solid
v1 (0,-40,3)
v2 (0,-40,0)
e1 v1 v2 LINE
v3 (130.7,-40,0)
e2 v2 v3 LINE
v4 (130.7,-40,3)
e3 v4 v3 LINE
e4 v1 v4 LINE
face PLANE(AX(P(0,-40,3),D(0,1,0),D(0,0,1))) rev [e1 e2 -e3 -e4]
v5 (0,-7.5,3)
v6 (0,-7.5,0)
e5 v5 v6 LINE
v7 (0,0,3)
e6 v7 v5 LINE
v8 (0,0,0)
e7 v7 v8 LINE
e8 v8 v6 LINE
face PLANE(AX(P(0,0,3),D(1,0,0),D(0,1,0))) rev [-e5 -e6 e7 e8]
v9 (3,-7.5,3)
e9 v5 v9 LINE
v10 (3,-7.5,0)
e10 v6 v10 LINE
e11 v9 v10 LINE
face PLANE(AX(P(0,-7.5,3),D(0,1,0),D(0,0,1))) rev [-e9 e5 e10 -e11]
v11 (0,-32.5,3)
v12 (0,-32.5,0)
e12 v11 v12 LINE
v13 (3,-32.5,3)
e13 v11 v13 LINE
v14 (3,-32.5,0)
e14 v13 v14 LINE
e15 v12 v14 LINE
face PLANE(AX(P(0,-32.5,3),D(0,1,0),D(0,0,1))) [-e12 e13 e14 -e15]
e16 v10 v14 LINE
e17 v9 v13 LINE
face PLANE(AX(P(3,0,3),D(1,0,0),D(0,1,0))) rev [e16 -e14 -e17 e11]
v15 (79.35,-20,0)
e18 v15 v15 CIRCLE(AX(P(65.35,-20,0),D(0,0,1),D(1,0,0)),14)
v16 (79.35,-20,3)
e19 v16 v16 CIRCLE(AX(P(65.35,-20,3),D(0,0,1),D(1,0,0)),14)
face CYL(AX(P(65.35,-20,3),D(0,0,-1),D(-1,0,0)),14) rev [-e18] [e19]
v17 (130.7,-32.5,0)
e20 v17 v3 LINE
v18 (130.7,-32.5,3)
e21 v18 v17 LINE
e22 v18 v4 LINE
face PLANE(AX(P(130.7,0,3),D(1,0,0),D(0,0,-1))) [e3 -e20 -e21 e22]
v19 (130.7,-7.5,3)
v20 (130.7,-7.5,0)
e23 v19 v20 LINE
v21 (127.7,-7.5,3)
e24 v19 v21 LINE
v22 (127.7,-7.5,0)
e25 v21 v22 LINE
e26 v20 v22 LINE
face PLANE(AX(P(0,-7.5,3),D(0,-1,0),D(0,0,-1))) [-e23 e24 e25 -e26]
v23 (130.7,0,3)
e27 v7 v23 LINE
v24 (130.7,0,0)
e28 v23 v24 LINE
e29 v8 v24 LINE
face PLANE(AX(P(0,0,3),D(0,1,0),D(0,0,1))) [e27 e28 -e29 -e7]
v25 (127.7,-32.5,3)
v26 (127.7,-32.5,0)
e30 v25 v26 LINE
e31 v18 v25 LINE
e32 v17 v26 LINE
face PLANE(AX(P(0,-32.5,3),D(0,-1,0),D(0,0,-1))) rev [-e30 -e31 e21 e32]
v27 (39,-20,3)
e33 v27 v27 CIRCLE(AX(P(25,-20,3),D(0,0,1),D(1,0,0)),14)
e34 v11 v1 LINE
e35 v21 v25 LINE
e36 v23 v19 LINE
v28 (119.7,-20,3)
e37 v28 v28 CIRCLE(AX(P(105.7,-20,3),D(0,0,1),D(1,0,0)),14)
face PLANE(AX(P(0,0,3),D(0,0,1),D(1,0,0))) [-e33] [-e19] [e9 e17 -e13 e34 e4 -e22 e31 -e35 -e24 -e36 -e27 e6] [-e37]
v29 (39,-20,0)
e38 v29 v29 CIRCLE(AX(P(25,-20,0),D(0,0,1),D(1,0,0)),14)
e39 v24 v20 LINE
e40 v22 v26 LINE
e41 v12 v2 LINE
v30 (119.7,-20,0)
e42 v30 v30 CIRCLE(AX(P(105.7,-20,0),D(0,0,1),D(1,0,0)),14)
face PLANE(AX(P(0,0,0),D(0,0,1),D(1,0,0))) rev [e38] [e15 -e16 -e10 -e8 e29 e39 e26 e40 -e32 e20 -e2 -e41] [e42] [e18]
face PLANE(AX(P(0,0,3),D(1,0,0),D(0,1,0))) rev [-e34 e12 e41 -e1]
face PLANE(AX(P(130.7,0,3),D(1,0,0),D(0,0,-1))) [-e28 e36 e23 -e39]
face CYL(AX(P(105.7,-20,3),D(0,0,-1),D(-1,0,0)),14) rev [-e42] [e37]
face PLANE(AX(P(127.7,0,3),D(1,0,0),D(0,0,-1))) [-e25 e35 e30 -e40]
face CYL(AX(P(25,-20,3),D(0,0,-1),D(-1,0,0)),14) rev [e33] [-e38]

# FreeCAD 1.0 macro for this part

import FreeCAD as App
import Part
import Sketcher


def add_polygon(sketch, points):
    """Adds a closed chain of lines whose ends are joined by coincident constraints."""
    first, n = sketch.GeometryCount, len(points)
    for a, b in zip(points, points[1:] + points[:1]):
        sketch.addGeometry(Part.LineSegment(App.Vector(*a, 0), App.Vector(*b, 0)), False)
    for i in range(n):
        sketch.addConstraint(Sketcher.Constraint("Coincident", first + i, 2, first + (i + 1) % n, 1))

doc = App.newDocument("Part")
body = doc.addObject("PartDesign::Body", "Body")

sketch1 = body.newObject("Sketcher::SketchObject", "Sketch")
sketch1.AttachmentSupport = (doc.getObject("XY_Plane"), [""])
sketch1.MapMode = "FlatFace"
add_polygon(sketch1, [(130.7, 0), (0, 0), (0, -7.5), (3, -7.5), (3, -32.5), (0, -32.5), (0, -40), (130.7, -40), (130.7, -32.5), (127.7, -32.5), (127.7, -7.5), (130.7, -7.5)])
sketch1.addGeometry(Part.Circle(App.Vector(25, -20, 0), App.Vector(0, 0, 1), 14), False)
sketch1.addGeometry(Part.Circle(App.Vector(65.3, -20, 0), App.Vector(0, 0, 1), 14), False)
sketch1.addGeometry(Part.Circle(App.Vector(105.7, -20, 0), App.Vector(0, 0, 1), 14), False)
sketch1.addConstraint([
    Sketcher.Constraint("Horizontal", 0),
    Sketcher.Constraint("Vertical", 1),
    Sketcher.Constraint("Horizontal", 2),
    Sketcher.Constraint("Vertical", 3),
    Sketcher.Constraint("Horizontal", 4),
    Sketcher.Constraint("Vertical", 5),
    Sketcher.Constraint("Horizontal", 6),
    Sketcher.Constraint("Vertical", 7),
    Sketcher.Constraint("Horizontal", 8),
    Sketcher.Constraint("Vertical", 9),
    Sketcher.Constraint("Horizontal", 10),
    Sketcher.Constraint("Vertical", 11),
    Sketcher.Constraint("Coincident", 0, 2, -1, 1),
    Sketcher.Constraint("Equal", 12, 13),
    Sketcher.Constraint("Equal", 13, 14),
    Sketcher.Constraint("PointOnObject", 4, 2, -2),
    Sketcher.Constraint("Horizontal", 12, 3, 13, 3),
    Sketcher.Constraint("Horizontal", 13, 3, 14, 3),
    Sketcher.Constraint("Horizontal", 4, 2, 7, 2),
    Sketcher.Constraint("Horizontal", 2, 2, 9, 2),
    Sketcher.Constraint("Vertical", 7, 2, 10, 2),
    Sketcher.Constraint("Equal", 4, 8),
    Sketcher.Constraint("Equal", 1, 5),
    Sketcher.Constraint("Diameter", 12, 28.0),
    Sketcher.Constraint("DistanceX", 2, 1, 2, 2, 3.0),
    Sketcher.Constraint("DistanceY", 3, 2, 3, 1, 25.0),
    Sketcher.Constraint("DistanceX", 0, 2, 0, 1, 130.7),
    Sketcher.Constraint("DistanceY", 1, 2, 1, 1, 7.5),
    Sketcher.Constraint("DistanceX", -1, 1, 12, 3, 25.0),
    Sketcher.Constraint("DistanceY", 12, 3, -1, 1, 20.0),
    Sketcher.Constraint("DistanceX", 14, 3, 6, 2, 25.0),
    Sketcher.Constraint("DistanceX", -1, 1, 13, 3, 65.35),
])
pad1 = body.newObject("PartDesign::Pad", "Pad")
pad1.Profile = sketch1
pad1.Length = 3

doc.recompute()
